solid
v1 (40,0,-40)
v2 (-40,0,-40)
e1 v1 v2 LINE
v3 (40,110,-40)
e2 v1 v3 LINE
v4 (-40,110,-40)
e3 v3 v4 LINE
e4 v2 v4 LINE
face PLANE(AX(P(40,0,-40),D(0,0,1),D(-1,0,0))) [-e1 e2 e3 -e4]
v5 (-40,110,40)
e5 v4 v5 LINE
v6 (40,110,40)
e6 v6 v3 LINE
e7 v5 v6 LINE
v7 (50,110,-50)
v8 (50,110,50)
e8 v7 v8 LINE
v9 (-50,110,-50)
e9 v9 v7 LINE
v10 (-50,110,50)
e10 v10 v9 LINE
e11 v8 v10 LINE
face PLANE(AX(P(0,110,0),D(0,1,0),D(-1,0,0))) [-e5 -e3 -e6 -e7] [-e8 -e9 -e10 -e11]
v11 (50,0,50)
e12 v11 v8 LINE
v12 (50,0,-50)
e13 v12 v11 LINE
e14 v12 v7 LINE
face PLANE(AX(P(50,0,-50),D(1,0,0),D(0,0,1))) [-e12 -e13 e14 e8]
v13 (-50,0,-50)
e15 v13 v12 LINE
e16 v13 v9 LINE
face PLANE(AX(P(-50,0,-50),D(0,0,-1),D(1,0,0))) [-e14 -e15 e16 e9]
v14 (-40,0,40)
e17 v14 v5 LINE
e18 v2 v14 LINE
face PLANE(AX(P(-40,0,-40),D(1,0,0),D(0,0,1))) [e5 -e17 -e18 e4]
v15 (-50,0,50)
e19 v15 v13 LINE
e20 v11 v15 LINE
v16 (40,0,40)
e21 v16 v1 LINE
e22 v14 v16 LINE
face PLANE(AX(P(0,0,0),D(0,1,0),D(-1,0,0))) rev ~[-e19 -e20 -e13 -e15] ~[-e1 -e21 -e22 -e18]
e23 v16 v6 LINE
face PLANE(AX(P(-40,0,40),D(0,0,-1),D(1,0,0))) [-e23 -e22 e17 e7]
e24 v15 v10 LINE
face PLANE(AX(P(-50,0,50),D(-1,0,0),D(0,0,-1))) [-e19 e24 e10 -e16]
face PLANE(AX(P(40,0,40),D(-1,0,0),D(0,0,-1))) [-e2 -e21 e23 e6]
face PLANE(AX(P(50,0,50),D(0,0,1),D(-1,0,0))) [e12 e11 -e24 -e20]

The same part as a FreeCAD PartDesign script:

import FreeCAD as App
import Part
import Sketcher

V = App.Vector
Q = App.Units.Quantity

doc = App.newDocument("Part")
params = doc.addObject("Spreadsheet::Sheet", "Params")
for row, (alias, value) in enumerate([
    ("sketch1_width", "3.937 in"),
    ("pad1_length", "4.3307087 in"),
], start=1):
    params.set(f"A{row}", alias)
    params.set(f"B{row}", "=" + value)
    params.setAlias(f"B{row}", alias)

body = doc.addObject("PartDesign::Body", "Body")

# Sketch on XZ plane
sketch1 = body.newObject("Sketcher::SketchObject", "Sketch")
sketch1.AttachmentSupport = (doc.getObject("XZ_Plane"), [""])
sketch1.MapMode = "FlatFace"
sketch1.addGeometry(Part.LineSegment(V(50, -50, 0), V(-50, -50, 0)), False)
sketch1.addGeometry(Part.LineSegment(V(-50, -50, 0), V(-50, 50, 0)), False)
sketch1.addGeometry(Part.LineSegment(V(-50, 50, 0), V(50, 50, 0)), False)
sketch1.addGeometry(Part.LineSegment(V(50, 50, 0), V(50, -50, 0)), False)
sketch1.addGeometry(Part.LineSegment(V(-40, -40, 0), V(40, -40, 0)), False)
sketch1.addGeometry(Part.LineSegment(V(40, -40, 0), V(40, 40, 0)), False)
sketch1.addGeometry(Part.LineSegment(V(40, 40, 0), V(-40, 40, 0)), False)
sketch1.addGeometry(Part.LineSegment(V(-40, 40, 0), V(-40, -40, 0)), False)
sketch1.addConstraint(Sketcher.Constraint("Coincident", 0, 2, 1, 1))
sketch1.addConstraint(Sketcher.Constraint("Coincident", 1, 2, 2, 1))
sketch1.addConstraint(Sketcher.Constraint("Coincident", 2, 2, 3, 1))
sketch1.addConstraint(Sketcher.Constraint("Coincident", 3, 2, 0, 1))
sketch1.addConstraint(Sketcher.Constraint("Coincident", 4, 2, 5, 1))
sketch1.addConstraint(Sketcher.Constraint("Coincident", 5, 2, 6, 1))
sketch1.addConstraint(Sketcher.Constraint("Coincident", 6, 2, 7, 1))
sketch1.addConstraint(Sketcher.Constraint("Coincident", 7, 2, 4, 1))
sketch1.addConstraint(Sketcher.Constraint("Horizontal", 0))
sketch1.addConstraint(Sketcher.Constraint("Vertical", 1))
sketch1.addConstraint(Sketcher.Constraint("Horizontal", 2))
sketch1.addConstraint(Sketcher.Constraint("Vertical", 3))
sketch1.addConstraint(Sketcher.Constraint("Horizontal", 4))
sketch1.addConstraint(Sketcher.Constraint("Vertical", 5))
sketch1.addConstraint(Sketcher.Constraint("Horizontal", 6))
sketch1.addConstraint(Sketcher.Constraint("Vertical", 7))
sketch1.addConstraint(Sketcher.Constraint("Symmetric", 0, 2, 2, 2, -1, 1))
sketch1.addConstraint(Sketcher.Constraint("Symmetric", 4, 2, 6, 2, -1, 1))
sketch1.addConstraint(Sketcher.Constraint("Equal", 2, 1))
sketch1.addConstraint(Sketcher.Constraint("Equal", 6, 5))
sketch1.addConstraint(Sketcher.Constraint("DistanceX", 0, 2, 0, 1, Q("3.937 in")))
sketch1.addConstraint(Sketcher.Constraint("DistanceX", 4, 1, 4, 2, Q("3.1496 in")))
sketch1.setExpression("Constraints[20]", "Params.sketch1_width")
pad1 = body.newObject("PartDesign::Pad", "Pad")
pad1.Profile = sketch1
pad1.setExpression("Length", "Params.pad1_length")
pad1.Reversed = True

doc.recompute()
